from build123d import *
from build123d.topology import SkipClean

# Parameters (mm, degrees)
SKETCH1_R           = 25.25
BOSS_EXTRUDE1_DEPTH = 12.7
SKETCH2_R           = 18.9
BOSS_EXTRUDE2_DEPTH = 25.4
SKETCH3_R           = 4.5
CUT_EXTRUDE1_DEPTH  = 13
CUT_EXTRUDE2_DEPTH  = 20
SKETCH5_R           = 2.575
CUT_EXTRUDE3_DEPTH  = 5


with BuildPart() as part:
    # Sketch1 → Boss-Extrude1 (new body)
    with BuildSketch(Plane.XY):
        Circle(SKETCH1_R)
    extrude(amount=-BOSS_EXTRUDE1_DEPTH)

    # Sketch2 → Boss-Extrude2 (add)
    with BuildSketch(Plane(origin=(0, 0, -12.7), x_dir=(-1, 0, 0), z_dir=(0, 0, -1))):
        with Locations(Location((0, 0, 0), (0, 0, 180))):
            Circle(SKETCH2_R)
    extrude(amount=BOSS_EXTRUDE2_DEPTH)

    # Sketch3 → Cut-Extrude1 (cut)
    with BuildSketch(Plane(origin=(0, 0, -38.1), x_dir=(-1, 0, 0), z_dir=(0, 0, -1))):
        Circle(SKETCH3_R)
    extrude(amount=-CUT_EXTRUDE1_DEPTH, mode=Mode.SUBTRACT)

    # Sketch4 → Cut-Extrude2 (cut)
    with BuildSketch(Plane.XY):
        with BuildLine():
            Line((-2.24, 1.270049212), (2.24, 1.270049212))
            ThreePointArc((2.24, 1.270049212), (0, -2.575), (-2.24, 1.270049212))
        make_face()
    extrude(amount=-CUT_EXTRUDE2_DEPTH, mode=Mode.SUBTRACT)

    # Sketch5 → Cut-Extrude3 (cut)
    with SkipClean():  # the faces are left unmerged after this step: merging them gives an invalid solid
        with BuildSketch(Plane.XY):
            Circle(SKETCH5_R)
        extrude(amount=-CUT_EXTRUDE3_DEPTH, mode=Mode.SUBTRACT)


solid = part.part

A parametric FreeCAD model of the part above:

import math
import FreeCAD as App
import Part
import Sketcher

V = App.Vector

doc = App.newDocument("Part")
body = doc.addObject("PartDesign::Body", "Body")

# Sketch on XY plane
sketch1 = doc.addObject("Sketcher::SketchObject", "Sketch")
body.addObject(sketch1)
sketch1.AttachmentSupport = (doc.XY_Plane, [""])
sketch1.MapMode = "FlatFace"
sketch1.addGeometry(Part.Circle(V(0, 0, 0), V(0, 0, 1), 25), False)
sketch1.addConstraint(Sketcher.Constraint("Coincident", 0, 3, -1, 1))
sketch1.addConstraint(Sketcher.Constraint("Diameter", 0, 50.5))
pad1 = doc.addObject("PartDesign::Pad", "Pad")
body.addObject(pad1)
pad1.Profile = sketch1
pad1.Length = 12.7
pad1.Reversed = True

# Sketch on XY plane
sketch2 = doc.addObject("Sketcher::SketchObject", "Sketch001")
body.addObject(sketch2)
sketch2.AttachmentSupport = (doc.XY_Plane, [""])
sketch2.MapMode = "FlatFace"
sketch2.AttachmentOffset = App.Placement(V(0, 0, -12.7), App.Rotation())
sketch2.addGeometry(Part.Circle(V(0, 0, 0), V(0, 0, 1), 19), False)
sketch2.addConstraint(Sketcher.Constraint("Coincident", 0, 3, -1, 1))
sketch2.addConstraint(Sketcher.Constraint("Diameter", 0, 37.8))
pad2 = doc.addObject("PartDesign::Pad", "Pad001")
body.addObject(pad2)
pad2.Profile = sketch2
pad2.Length = 25.4
pad2.Reversed = True

# Sketch on XY plane
sketch3 = doc.addObject("Sketcher::SketchObject", "Sketch002")
body.addObject(sketch3)
sketch3.AttachmentSupport = (doc.XY_Plane, [""])
sketch3.MapMode = "FlatFace"
sketch3.AttachmentOffset = App.Placement(V(0, 0, -38.1), App.Rotation())
sketch3.addGeometry(Part.Circle(V(0, 0, 0), V(0, 0, 1), 4.5), False)
sketch3.addConstraint(Sketcher.Constraint("Coincident", 0, 3, -1, 1))
sketch3.addConstraint(Sketcher.Constraint("Diameter", 0, 9.0))
pocket1 = doc.addObject("PartDesign::Pocket", "Pocket")
body.addObject(pocket1)
pocket1.Profile = sketch3
pocket1.Length = 13
pocket1.Reversed = True

# Sketch on XY plane
sketch4 = doc.addObject("Sketcher::SketchObject", "Sketch003")
body.addObject(sketch4)
sketch4.AttachmentSupport = (doc.XY_Plane, [""])
sketch4.MapMode = "FlatFace"
sketch4.addGeometry(Part.LineSegment(V(2.2, 1.3, 0), V(-2.2, 1.3, 0)), False)
sketch4.addGeometry(Part.ArcOfCircle(Part.Circle(V(0, 0, 0), V(0, 0, 1), 2.6), math.radians(150), math.radians(390)), False)
sketch4.addConstraint(Sketcher.Constraint("Coincident", 0, 1, 1, 2))
sketch4.addConstraint(Sketcher.Constraint("Coincident", 1, 1, 0, 2))
sketch4.addConstraint(Sketcher.Constraint("Horizontal", 0))
sketch4.addConstraint(Sketcher.Constraint("Coincident", 1, 3, -1, 1))
sketch4.addConstraint(Sketcher.Constraint("Radius", 1, 2.575))
sketch4.addConstraint(Sketcher.Constraint("DistanceX", 0, 2, 0, 1, 4.48))
pocket2 = doc.addObject("PartDesign::Pocket", "Pocket001")
body.addObject(pocket2)
pocket2.Profile = sketch4
pocket2.Length = 20

# Sketch on XY plane
sketch5 = doc.addObject("Sketcher::SketchObject", "Sketch004")
body.addObject(sketch5)
sketch5.AttachmentSupport = (doc.XY_Plane, [""])
sketch5.MapMode = "FlatFace"
sketch5.addGeometry(Part.Circle(V(0, 0, 0), V(0, 0, 1), 2.6), False)
sketch5.addConstraint(Sketcher.Constraint("Coincident", 0, 3, -1, 1))
sketch5.addConstraint(Sketcher.Constraint("Diameter", 0, 5.15))
pocket3 = doc.addObject("PartDesign::Pocket", "Pocket002")
body.addObject(pocket3)
pocket3.Profile = sketch5
pocket3.Length = 5

doc.recompute()
